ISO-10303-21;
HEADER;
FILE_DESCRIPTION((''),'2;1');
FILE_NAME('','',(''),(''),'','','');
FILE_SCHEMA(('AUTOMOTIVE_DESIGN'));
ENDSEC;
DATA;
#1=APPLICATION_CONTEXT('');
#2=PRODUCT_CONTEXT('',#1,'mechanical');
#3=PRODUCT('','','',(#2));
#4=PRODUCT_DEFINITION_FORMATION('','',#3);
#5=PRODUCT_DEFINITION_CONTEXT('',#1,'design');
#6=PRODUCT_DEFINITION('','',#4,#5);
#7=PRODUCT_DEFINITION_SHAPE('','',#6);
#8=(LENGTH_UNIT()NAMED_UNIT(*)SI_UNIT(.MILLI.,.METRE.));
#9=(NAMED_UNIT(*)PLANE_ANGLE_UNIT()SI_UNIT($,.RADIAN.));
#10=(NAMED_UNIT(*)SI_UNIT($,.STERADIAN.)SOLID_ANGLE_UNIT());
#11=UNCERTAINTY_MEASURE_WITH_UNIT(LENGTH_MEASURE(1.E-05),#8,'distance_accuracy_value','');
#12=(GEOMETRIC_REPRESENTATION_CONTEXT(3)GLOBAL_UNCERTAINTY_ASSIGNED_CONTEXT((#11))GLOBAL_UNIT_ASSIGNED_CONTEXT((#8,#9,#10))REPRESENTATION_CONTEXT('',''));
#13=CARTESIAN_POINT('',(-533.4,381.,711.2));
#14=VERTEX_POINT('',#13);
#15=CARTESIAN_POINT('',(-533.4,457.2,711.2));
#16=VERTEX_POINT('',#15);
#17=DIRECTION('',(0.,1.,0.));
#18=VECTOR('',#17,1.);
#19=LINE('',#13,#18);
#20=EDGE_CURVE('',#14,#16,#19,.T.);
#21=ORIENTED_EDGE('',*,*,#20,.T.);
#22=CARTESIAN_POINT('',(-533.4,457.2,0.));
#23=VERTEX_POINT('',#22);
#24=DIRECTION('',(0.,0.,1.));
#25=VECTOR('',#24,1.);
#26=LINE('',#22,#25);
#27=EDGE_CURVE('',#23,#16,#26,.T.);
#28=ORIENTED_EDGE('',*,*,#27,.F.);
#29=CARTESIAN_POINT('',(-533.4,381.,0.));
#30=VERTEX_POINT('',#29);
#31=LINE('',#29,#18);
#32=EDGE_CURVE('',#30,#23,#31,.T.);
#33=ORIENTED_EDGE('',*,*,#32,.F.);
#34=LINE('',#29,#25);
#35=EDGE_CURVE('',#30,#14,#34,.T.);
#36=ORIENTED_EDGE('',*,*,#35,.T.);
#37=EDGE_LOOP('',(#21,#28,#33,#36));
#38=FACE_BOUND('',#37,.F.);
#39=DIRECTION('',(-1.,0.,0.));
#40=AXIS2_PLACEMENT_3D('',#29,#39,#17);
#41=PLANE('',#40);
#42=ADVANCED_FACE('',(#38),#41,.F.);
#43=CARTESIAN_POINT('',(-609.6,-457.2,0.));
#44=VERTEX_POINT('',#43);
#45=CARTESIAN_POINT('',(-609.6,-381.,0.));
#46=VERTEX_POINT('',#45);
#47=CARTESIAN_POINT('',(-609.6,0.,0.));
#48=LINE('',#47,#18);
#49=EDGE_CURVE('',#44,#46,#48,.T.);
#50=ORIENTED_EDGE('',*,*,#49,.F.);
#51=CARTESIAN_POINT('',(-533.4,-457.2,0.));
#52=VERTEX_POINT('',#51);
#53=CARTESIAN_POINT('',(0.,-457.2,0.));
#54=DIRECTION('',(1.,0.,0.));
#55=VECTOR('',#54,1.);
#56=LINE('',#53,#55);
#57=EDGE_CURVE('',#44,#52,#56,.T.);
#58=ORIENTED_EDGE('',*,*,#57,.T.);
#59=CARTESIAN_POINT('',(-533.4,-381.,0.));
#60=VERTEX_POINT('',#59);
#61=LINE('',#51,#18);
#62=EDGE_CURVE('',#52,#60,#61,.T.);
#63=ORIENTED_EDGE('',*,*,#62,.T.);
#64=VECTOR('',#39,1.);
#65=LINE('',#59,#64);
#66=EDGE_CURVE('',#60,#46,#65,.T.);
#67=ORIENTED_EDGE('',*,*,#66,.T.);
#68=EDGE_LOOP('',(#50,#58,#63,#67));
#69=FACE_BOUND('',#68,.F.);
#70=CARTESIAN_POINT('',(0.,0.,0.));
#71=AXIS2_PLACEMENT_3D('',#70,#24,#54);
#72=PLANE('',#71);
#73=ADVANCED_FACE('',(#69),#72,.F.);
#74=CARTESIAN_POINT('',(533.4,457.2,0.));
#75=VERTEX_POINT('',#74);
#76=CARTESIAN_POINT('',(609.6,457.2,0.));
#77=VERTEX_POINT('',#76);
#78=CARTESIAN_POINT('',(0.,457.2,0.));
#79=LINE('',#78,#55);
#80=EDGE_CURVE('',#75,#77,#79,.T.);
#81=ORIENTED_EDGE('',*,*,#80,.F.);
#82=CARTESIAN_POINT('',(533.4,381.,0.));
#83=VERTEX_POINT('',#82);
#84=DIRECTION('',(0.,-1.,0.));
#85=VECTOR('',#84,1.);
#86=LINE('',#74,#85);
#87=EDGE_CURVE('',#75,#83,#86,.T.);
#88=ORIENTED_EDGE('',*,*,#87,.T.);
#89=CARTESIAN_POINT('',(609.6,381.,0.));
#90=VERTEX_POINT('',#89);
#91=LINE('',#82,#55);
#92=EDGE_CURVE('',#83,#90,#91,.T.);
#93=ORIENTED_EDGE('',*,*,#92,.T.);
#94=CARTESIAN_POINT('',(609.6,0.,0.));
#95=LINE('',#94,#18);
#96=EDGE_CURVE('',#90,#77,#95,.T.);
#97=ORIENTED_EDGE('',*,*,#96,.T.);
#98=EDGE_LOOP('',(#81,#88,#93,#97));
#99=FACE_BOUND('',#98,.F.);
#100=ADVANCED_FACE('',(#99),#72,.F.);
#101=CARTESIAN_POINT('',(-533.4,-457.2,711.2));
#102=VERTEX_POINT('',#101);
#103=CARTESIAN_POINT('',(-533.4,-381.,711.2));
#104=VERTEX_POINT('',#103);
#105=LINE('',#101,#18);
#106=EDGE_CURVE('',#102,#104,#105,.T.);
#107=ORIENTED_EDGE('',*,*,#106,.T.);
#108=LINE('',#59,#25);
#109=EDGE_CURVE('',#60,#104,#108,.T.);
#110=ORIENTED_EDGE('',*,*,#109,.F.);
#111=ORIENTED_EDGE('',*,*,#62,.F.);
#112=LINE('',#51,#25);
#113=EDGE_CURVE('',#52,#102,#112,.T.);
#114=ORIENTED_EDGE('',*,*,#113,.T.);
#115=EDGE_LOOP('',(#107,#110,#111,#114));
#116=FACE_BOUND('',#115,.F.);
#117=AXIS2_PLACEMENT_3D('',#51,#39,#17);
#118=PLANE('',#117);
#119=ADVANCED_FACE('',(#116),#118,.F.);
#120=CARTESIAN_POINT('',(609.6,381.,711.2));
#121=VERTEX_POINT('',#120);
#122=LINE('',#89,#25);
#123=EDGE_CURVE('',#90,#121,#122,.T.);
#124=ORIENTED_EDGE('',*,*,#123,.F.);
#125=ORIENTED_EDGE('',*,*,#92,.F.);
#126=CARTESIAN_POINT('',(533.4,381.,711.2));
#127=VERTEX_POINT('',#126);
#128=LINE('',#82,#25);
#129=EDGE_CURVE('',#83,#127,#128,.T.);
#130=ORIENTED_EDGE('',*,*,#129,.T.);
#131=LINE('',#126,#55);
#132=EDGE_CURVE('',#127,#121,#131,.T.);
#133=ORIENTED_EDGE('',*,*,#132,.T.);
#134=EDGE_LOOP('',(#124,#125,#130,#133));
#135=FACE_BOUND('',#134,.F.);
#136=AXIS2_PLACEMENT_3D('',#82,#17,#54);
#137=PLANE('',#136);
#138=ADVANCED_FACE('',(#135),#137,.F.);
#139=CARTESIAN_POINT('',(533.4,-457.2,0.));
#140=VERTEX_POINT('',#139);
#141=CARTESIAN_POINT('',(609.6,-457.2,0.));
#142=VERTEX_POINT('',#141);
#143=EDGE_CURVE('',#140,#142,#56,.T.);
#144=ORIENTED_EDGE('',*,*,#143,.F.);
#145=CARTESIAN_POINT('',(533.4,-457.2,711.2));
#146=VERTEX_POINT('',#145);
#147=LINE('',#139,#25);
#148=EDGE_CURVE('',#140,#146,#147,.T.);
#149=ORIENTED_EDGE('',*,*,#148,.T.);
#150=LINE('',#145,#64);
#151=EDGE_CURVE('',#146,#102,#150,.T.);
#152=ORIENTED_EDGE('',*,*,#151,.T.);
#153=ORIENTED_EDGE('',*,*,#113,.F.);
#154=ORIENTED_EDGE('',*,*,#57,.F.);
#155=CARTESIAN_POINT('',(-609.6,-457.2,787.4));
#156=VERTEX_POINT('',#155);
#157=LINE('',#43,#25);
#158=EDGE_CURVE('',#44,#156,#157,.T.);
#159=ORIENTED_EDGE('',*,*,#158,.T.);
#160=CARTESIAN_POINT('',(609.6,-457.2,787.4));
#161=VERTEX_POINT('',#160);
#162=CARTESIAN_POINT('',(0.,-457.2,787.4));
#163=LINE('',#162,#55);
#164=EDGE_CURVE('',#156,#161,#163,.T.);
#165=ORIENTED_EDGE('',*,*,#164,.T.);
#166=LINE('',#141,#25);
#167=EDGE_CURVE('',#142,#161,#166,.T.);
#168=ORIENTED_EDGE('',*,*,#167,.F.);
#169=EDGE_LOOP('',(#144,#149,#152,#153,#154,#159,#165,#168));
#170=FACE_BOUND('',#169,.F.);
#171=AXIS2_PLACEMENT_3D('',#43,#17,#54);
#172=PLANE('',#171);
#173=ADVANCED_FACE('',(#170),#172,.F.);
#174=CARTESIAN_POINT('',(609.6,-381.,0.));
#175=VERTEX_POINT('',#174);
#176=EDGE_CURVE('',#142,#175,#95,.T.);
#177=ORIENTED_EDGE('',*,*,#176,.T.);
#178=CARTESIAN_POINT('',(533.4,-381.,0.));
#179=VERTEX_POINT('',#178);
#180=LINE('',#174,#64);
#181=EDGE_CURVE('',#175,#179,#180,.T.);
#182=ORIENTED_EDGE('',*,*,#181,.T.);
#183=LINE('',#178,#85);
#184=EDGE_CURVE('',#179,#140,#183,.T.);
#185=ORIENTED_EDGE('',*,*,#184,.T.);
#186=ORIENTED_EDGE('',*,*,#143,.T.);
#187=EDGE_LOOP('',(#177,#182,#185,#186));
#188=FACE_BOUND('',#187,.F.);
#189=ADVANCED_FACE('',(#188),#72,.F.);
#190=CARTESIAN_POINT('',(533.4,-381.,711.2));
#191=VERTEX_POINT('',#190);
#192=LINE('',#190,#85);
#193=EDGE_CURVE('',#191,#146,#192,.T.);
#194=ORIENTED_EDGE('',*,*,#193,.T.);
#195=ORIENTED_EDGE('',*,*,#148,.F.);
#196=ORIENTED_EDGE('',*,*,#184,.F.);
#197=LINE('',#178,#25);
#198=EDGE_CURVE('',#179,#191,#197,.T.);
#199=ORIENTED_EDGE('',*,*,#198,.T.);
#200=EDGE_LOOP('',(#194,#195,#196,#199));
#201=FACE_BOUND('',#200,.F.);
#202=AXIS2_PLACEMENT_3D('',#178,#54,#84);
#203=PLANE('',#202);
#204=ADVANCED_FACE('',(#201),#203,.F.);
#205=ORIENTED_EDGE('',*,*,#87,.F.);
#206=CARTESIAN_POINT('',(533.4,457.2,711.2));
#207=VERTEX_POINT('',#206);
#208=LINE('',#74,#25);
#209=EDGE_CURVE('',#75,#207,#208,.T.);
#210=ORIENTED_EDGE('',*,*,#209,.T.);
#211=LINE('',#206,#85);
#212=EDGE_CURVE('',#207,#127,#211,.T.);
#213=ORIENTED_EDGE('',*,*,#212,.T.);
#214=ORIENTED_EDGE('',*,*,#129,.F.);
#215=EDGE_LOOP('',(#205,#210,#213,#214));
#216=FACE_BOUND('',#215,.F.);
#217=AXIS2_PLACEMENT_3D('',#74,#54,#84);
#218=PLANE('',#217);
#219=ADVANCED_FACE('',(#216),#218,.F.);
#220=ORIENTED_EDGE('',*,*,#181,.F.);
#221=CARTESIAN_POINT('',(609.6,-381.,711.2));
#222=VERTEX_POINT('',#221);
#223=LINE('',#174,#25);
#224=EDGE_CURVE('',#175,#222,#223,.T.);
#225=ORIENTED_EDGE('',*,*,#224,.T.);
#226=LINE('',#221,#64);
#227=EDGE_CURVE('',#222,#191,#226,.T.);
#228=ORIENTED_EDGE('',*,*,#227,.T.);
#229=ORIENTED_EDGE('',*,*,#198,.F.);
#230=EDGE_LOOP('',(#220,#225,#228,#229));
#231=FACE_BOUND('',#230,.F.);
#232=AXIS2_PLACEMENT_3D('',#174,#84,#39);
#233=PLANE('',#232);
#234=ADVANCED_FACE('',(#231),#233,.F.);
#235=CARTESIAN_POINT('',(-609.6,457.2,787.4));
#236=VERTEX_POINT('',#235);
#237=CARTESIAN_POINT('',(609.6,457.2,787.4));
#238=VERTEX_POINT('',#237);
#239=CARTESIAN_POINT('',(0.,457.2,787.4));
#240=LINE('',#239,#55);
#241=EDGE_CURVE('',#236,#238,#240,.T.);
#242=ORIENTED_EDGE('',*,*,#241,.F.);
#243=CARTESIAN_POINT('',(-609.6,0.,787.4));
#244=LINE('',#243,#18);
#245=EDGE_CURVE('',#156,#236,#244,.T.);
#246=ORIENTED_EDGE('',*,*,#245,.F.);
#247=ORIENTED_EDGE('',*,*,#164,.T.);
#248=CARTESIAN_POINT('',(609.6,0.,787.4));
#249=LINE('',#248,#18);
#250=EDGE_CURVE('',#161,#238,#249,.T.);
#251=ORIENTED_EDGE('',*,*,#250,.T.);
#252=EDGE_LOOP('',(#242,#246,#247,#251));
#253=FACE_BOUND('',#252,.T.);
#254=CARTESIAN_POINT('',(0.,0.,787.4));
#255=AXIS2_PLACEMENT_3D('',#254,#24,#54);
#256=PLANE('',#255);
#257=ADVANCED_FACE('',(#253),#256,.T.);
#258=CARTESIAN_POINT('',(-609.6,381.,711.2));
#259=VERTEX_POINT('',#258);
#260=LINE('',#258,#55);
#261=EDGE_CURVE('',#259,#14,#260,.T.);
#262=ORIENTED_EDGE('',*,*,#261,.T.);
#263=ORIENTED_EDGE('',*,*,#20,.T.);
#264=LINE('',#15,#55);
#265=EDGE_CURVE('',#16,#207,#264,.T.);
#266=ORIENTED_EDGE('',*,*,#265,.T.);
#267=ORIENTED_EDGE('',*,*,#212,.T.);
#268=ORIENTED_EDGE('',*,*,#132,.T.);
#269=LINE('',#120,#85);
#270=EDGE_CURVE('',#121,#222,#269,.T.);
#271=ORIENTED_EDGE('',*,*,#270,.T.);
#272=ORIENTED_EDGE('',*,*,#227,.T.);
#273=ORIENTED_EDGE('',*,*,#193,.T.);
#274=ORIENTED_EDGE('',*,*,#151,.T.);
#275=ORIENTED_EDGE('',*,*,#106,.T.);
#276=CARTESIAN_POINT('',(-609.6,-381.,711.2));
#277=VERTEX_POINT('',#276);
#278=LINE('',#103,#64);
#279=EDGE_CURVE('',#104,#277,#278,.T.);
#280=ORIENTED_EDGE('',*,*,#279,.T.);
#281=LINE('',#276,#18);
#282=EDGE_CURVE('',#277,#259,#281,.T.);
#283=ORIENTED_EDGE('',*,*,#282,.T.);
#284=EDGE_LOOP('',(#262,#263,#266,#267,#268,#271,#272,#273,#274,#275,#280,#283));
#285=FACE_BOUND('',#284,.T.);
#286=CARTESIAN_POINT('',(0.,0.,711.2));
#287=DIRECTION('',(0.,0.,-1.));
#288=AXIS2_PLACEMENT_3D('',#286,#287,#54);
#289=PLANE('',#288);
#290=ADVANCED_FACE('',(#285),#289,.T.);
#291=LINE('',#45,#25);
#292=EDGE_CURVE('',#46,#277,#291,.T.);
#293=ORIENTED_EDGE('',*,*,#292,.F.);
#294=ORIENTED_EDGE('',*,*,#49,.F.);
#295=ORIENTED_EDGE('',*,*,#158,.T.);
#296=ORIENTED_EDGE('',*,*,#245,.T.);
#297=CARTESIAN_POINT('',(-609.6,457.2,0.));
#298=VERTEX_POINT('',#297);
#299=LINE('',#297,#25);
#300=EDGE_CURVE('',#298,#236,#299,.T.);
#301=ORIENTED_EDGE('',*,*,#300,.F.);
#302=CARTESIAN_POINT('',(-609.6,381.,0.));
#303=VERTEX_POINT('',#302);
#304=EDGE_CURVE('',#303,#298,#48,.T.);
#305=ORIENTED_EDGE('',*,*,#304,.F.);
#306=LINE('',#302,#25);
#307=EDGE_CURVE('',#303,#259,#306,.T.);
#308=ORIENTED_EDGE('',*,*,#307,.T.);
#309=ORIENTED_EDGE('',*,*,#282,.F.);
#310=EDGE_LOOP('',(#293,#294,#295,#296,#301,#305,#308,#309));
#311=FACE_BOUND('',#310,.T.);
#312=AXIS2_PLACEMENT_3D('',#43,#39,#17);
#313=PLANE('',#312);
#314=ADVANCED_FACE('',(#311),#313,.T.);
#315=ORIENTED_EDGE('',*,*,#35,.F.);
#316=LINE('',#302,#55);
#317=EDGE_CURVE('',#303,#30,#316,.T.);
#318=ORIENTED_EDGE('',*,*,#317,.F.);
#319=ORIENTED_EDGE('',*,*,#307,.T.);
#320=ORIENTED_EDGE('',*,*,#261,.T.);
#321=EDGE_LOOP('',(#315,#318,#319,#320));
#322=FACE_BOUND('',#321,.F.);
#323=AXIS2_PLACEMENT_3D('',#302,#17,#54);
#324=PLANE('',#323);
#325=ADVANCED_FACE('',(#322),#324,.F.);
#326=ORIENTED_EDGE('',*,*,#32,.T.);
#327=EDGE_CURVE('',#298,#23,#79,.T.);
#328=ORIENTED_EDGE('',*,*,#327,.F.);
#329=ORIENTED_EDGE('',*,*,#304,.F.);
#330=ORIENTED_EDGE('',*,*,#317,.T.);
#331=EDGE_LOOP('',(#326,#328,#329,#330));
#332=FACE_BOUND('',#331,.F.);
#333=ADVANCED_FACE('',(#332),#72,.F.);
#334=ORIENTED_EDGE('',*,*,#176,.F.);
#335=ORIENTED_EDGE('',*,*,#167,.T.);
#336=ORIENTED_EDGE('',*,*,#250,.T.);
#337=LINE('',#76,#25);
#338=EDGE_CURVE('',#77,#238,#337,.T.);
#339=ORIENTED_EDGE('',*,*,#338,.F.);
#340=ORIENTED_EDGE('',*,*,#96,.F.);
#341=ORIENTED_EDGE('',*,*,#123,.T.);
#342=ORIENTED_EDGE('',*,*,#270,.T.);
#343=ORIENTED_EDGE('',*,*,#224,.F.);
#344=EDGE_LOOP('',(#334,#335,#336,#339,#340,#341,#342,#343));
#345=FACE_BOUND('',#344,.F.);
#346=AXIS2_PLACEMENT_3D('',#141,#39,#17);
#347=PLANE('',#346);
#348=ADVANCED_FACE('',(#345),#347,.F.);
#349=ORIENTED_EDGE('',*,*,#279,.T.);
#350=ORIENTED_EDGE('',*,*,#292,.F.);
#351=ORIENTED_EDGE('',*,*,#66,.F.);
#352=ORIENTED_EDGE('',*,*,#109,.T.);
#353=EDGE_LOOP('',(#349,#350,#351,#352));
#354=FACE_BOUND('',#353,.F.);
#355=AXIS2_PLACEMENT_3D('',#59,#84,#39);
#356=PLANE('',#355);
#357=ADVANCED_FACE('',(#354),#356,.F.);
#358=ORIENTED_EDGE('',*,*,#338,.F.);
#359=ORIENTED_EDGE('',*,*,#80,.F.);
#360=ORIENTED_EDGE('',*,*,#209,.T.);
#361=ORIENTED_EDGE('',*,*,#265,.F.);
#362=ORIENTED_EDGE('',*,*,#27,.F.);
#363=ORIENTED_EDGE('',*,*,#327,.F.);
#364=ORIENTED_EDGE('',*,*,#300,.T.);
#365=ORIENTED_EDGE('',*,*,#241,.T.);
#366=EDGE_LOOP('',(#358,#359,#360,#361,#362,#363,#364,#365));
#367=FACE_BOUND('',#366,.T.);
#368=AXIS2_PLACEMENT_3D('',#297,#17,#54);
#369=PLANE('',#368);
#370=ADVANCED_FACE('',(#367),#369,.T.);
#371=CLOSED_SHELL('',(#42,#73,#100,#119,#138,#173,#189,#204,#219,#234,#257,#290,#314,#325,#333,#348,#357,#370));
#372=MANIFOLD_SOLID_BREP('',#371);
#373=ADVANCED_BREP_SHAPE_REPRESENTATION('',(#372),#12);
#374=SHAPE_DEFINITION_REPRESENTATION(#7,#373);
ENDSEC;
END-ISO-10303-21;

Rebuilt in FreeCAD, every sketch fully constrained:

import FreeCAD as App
import Part
import Sketcher
from FreeCAD import Vector
Q = App.Units.Quantity


def add_polygon(sketch, points):
    """Adds a closed chain of lines whose ends are joined by coincident constraints."""
    first, n = sketch.GeometryCount, len(points)
    for a, b in zip(points, points[1:] + points[:1]):
        sketch.addGeometry(Part.LineSegment(App.Vector(*a, 0), App.Vector(*b, 0)), False)
    for i in range(n):
        sketch.addConstraint(Sketcher.Constraint("Coincident", first + i, 2, first + (i + 1) % n, 1))

doc = App.newDocument("Part")
body = doc.addObject("PartDesign::Body", "Body")

# Sketch on XY plane
sketch1 = body.newObject("Sketcher::SketchObject", "Sketch")
sketch1.AttachmentSupport = (doc.getObject("XY_Plane"), [""])
sketch1.MapMode = "FlatFace"
add_polygon(sketch1, [(-610, 457), (-610, -457), (610, -457), (610, 457)])  # lines 0-3
sketch1.addConstraint(Sketcher.Constraint("Vertical", 0))
sketch1.addConstraint(Sketcher.Constraint("Horizontal", 1))
sketch1.addConstraint(Sketcher.Constraint("Vertical", 2))
sketch1.addConstraint(Sketcher.Constraint("Horizontal", 3))
sketch1.addConstraint(Sketcher.Constraint("Symmetric", 0, 2, 2, 2, -1, 1))
sketch1.addConstraint(Sketcher.Constraint("DistanceX", 1, 1, 1, 2, Q("48 in")))
sketch1.addConstraint(Sketcher.Constraint("DistanceY", 0, 2, 0, 1, Q("36 in")))
pad1 = body.newObject("PartDesign::Pad", "Pad")
pad1.Profile = sketch1
pad1.Length = Q("31 in")

# Sketch on XY plane
sketch2 = body.newObject("Sketcher::SketchObject", "Sketch001")
sketch2.AttachmentSupport = (doc.getObject("XY_Plane"), [""])
sketch2.MapMode = "FlatFace"
add_polygon(sketch2, [(533, -457), (-533, -457), (-533, -381), (-610, -381), (-610, 381), (-533, 381), (-533, 457), (533, 457), (533, 381), (610, 381), (610, -381), (533, -381)])  # lines 0-11
sketch2.addConstraint(Sketcher.Constraint("Horizontal", 0))
sketch2.addConstraint(Sketcher.Constraint("Vertical", 1))
sketch2.addConstraint(Sketcher.Constraint("Horizontal", 2))
sketch2.addConstraint(Sketcher.Constraint("Vertical", 3))
sketch2.addConstraint(Sketcher.Constraint("Horizontal", 4))
sketch2.addConstraint(Sketcher.Constraint("Vertical", 5))
sketch2.addConstraint(Sketcher.Constraint("Horizontal", 6))
sketch2.addConstraint(Sketcher.Constraint("Vertical", 7))
sketch2.addConstraint(Sketcher.Constraint("Horizontal", 8))
sketch2.addConstraint(Sketcher.Constraint("Vertical", 9))
sketch2.addConstraint(Sketcher.Constraint("Horizontal", 10))
sketch2.addConstraint(Sketcher.Constraint("Vertical", 11))
sketch2.addConstraint(Sketcher.Constraint("Symmetric", 0, 2, 6, 2, -1, 1))
sketch2.addConstraint(Sketcher.Constraint("Symmetric", 2, 2, 8, 2, -1, 1))
sketch2.addConstraint(Sketcher.Constraint("Symmetric", 4, 2, 10, 2, -1, 1))
sketch2.addConstraint(Sketcher.Constraint("Symmetric", 4, 2, 7, 2, -2))
sketch2.addConstraint(Sketcher.Constraint("Equal", 10, 1))
sketch2.addConstraint(Sketcher.Constraint("DistanceX", 0, 2, 0, 1, Q("42 in")))
sketch2.addConstraint(Sketcher.Constraint("DistanceX", 2, 2, 2, 1, Q("3 in")))
sketch2.addConstraint(Sketcher.Constraint("DistanceY", 3, 1, 3, 2, Q("30 in")))
pocket1 = body.newObject("PartDesign::Pocket", "Pocket")
pocket1.Profile = sketch2
pocket1.Length = Q("28 in")
pocket1.Reversed = True

doc.recompute()
